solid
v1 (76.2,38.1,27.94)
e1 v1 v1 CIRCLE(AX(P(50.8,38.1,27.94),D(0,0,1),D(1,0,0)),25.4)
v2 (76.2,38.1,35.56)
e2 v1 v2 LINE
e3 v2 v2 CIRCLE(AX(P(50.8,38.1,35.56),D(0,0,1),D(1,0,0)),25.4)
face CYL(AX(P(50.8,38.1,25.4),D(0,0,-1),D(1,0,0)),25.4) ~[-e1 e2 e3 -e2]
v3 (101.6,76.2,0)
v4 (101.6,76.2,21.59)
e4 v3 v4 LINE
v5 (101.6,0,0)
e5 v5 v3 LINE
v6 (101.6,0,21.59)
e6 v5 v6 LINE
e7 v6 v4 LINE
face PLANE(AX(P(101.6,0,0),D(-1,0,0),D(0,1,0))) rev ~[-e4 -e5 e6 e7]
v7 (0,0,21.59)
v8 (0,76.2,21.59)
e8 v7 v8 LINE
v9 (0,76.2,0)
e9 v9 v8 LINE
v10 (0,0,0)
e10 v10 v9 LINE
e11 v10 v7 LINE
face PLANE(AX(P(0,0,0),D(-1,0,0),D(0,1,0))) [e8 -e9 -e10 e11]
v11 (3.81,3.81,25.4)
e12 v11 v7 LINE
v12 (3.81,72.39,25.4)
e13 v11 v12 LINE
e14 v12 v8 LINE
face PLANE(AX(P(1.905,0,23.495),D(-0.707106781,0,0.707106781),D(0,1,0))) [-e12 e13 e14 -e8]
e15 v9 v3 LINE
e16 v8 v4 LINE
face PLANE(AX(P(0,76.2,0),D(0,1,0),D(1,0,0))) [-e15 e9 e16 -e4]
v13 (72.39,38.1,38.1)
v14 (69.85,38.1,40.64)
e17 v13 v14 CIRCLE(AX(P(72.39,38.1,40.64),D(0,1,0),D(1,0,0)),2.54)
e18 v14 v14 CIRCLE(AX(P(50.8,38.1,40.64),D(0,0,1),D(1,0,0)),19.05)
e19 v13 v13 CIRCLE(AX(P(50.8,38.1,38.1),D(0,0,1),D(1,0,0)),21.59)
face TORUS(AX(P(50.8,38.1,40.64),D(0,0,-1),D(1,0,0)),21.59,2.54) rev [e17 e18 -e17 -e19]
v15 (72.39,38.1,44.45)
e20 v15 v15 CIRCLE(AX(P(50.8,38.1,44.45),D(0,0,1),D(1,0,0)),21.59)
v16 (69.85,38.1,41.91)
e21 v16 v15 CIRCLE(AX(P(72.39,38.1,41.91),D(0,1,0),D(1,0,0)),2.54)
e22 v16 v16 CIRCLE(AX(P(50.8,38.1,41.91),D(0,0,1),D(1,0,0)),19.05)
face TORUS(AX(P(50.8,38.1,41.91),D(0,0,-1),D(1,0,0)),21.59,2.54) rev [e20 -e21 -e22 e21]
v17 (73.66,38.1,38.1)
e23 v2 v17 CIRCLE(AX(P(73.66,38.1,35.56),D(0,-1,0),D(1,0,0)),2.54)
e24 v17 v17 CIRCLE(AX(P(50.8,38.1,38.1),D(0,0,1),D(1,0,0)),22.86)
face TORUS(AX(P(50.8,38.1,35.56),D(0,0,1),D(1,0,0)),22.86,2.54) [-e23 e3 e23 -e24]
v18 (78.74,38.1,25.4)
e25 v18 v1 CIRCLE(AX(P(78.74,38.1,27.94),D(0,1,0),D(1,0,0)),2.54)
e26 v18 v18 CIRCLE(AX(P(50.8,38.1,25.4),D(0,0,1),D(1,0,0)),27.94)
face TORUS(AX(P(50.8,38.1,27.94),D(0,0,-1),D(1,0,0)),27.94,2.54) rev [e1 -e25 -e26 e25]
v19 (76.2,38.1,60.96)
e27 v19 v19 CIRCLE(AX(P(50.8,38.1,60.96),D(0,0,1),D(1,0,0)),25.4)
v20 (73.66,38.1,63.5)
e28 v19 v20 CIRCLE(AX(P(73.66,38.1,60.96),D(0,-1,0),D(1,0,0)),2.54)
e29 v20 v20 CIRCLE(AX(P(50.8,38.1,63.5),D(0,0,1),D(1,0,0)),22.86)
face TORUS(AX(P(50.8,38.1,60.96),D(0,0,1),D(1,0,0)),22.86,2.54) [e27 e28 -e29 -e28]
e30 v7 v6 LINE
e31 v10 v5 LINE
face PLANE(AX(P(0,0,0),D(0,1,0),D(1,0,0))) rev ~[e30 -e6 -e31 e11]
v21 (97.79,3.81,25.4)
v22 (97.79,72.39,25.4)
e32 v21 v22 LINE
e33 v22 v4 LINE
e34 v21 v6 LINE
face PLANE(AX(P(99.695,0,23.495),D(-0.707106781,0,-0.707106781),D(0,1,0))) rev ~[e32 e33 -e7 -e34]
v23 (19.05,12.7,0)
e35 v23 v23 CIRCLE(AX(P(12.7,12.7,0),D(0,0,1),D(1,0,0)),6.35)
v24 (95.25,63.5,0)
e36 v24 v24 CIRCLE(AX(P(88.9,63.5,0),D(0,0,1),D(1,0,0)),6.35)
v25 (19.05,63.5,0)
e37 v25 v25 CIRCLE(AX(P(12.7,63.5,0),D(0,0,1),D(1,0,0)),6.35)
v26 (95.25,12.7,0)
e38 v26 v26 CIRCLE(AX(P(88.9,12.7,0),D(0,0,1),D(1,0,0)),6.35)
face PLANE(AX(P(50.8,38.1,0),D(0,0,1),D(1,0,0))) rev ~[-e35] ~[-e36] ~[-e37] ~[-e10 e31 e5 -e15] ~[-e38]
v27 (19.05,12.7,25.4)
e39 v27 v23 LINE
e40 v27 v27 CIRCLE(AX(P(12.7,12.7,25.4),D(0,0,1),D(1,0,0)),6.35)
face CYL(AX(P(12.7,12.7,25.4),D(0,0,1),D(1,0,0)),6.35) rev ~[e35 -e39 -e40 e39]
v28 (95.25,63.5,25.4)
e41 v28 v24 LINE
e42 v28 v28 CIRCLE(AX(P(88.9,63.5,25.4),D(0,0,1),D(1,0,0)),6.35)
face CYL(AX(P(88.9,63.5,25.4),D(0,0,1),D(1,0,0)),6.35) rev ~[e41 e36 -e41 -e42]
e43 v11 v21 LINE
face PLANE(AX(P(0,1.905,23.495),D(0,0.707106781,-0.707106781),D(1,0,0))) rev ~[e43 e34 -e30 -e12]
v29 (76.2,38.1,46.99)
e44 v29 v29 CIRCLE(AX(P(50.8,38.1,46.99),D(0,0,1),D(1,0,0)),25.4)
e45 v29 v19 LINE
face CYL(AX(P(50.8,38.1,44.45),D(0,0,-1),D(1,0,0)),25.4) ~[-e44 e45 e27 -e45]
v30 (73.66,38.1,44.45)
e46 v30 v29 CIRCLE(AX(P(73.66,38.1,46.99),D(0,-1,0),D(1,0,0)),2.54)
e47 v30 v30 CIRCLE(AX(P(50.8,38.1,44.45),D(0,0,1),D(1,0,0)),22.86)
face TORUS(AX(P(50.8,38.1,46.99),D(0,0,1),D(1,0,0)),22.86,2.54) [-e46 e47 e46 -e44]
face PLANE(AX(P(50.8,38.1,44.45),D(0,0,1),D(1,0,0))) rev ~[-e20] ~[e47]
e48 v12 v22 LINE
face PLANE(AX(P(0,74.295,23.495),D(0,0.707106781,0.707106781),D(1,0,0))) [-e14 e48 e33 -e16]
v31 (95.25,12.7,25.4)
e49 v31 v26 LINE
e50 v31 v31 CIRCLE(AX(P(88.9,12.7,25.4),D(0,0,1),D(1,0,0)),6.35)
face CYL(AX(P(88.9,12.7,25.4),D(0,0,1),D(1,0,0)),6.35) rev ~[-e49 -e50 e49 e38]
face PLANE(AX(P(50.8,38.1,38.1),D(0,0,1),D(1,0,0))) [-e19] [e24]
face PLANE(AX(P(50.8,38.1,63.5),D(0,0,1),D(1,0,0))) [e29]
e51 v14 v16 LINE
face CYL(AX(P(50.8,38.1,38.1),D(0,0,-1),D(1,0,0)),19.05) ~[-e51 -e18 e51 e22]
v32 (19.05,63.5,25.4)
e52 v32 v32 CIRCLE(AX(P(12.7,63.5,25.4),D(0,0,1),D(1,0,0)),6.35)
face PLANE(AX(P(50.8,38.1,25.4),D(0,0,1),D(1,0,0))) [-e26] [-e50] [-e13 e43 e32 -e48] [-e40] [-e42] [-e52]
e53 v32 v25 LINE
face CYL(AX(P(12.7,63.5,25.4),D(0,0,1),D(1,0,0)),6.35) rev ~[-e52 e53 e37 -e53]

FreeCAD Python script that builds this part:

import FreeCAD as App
import Part
import Sketcher
Q = App.Units.Quantity


def edges_at(feature, points):
    """Names of the edges that pass closest to the given points."""
    edges = feature.Shape.Edges
    near = lambda p: min(range(len(edges)), key=lambda i: edges[i].distToShape(Part.Vertex(*p))[0])
    return sorted({f"Edge{near(p) + 1}" for p in points})

doc = App.newDocument("Part")
params = doc.addObject("Spreadsheet::Sheet", "Params")
for row, (alias, value) in enumerate([
    ("sketch1_width", "4 in"),
    ("sketch1_height", "3 in"),
    ("pad1_length", "1 in"),
    ("sketch2_diameter", "0.5 in"),
    ("pocket1_length", "1 in"),
    ("sketch3_diameter", "2 in"),
    ("pad2_length", "0.5 in"),
    ("sketch4_diameter", "1.5 in"),
    ("pad3_length", "0.25 in"),
    ("sketch5_diameter", "2 in"),
    ("pad4_length", "0.75 in"),
    ("chamfer_size", "0.15 in"),
    ("fillet_radius", "0.1 in"),
], start=1):
    params.set(f"A{row}", alias)
    params.set(f"B{row}", "=" + value)
    params.setAlias(f"B{row}", alias)

body = doc.addObject("PartDesign::Body", "Body")

# Sketch on XY plane
sketch1 = doc.addObject("Sketcher::SketchObject", "Sketch")
body.addObject(sketch1)
sketch1.AttachmentSupport = (doc.XY_Plane, [""])
sketch1.MapMode = "FlatFace"
sketch1.addGeometry([
    Part.LineSegment(App.Vector(0, 76, 0), App.Vector(0, 0, 0)),
    Part.LineSegment(App.Vector(0, 0, 0), App.Vector(102, 0, 0)),
    Part.LineSegment(App.Vector(102, 0, 0), App.Vector(102, 76, 0)),
    Part.LineSegment(App.Vector(102, 76, 0), App.Vector(0, 76, 0)),
], False)
sketch1.addConstraint([
    Sketcher.Constraint("Coincident", 0, 2, 1, 1),
    Sketcher.Constraint("Coincident", 1, 2, 2, 1),
    Sketcher.Constraint("Coincident", 2, 2, 3, 1),
    Sketcher.Constraint("Coincident", 3, 2, 0, 1),
    Sketcher.Constraint("Vertical", 0),
    Sketcher.Constraint("Horizontal", 1),
    Sketcher.Constraint("Vertical", 2),
    Sketcher.Constraint("Horizontal", 3),
    Sketcher.Constraint("Coincident", 0, 2, -1, 1),
    Sketcher.Constraint("DistanceX", 1, 1, 1, 2, Q("4 in")),
    Sketcher.Constraint("DistanceY", 0, 2, 0, 1, Q("3 in")),
])
sketch1.setExpression("Constraints[9]", "Params.sketch1_width")
sketch1.setExpression("Constraints[10]", "Params.sketch1_height")
pad1 = doc.addObject("PartDesign::Pad", "Pad")
body.addObject(pad1)
pad1.Profile = sketch1
pad1.setExpression("Length", "Params.pad1_length")

# Sketch on XY plane
sketch2 = doc.addObject("Sketcher::SketchObject", "Sketch001")
body.addObject(sketch2)
sketch2.AttachmentSupport = (doc.XY_Plane, [""])
sketch2.MapMode = "FlatFace"
sketch2.AttachmentOffset = App.Placement(App.Vector(0, 0, 1 * 25.4), App.Rotation())
sketch2.addGeometry([
    Part.Circle(App.Vector(13, 64, 0), App.Vector(0, 0, 1), 6),
    Part.Circle(App.Vector(89, 13, 0), App.Vector(0, 0, 1), 6),
    Part.Circle(App.Vector(89, 64, 0), App.Vector(0, 0, 1), 6),
    Part.Circle(App.Vector(13, 13, 0), App.Vector(0, 0, 1), 6),
], False)
sketch2.addConstraint([
    Sketcher.Constraint("Equal", 0, 1),
    Sketcher.Constraint("Equal", 1, 2),
    Sketcher.Constraint("Equal", 2, 3),
    Sketcher.Constraint("Horizontal", 0, 3, 2, 3),
    Sketcher.Constraint("Horizontal", 1, 3, 3, 3),
    Sketcher.Constraint("Vertical", 1, 3, 2, 3),
    Sketcher.Constraint("Vertical", 0, 3, 3, 3),
    Sketcher.Constraint("Diameter", 0, Q("0.5 in")),
    Sketcher.Constraint("DistanceX", 0, 3, 1, 3, Q("3 in")),
    Sketcher.Constraint("DistanceY", 1, 3, 0, 3, Q("2 in")),
    Sketcher.Constraint("DistanceX", -1, 1, 0, 3, Q("0.5 in")),
    Sketcher.Constraint("DistanceY", -1, 1, 0, 3, Q("2.5 in")),
])
sketch2.setExpression("Constraints[7]", "Params.sketch2_diameter")
pocket1 = doc.addObject("PartDesign::Pocket", "Pocket")
body.addObject(pocket1)
pocket1.Profile = sketch2
pocket1.setExpression("Length", "Params.pocket1_length")

# Sketch on XY plane
sketch3 = doc.addObject("Sketcher::SketchObject", "Sketch002")
body.addObject(sketch3)
sketch3.AttachmentSupport = (doc.XY_Plane, [""])
sketch3.MapMode = "FlatFace"
sketch3.AttachmentOffset = App.Placement(App.Vector(0, 0, 1 * 25.4), App.Rotation())
sketch3.addGeometry(Part.Circle(App.Vector(51, 38, 0), App.Vector(0, 0, 1), 25), False)
sketch3.addConstraint([
    Sketcher.Constraint("Diameter", 0, Q("2 in")),
    Sketcher.Constraint("DistanceX", -1, 1, 0, 3, Q("2 in")),
    Sketcher.Constraint("DistanceY", -1, 1, 0, 3, Q("1.5 in")),
])
sketch3.setExpression("Constraints[0]", "Params.sketch3_diameter")
pad2 = doc.addObject("PartDesign::Pad", "Pad001")
body.addObject(pad2)
pad2.Profile = sketch3
pad2.setExpression("Length", "Params.pad2_length")

# Sketch on XY plane
sketch4 = doc.addObject("Sketcher::SketchObject", "Sketch003")
body.addObject(sketch4)
sketch4.AttachmentSupport = (doc.XY_Plane, [""])
sketch4.MapMode = "FlatFace"
sketch4.AttachmentOffset = App.Placement(App.Vector(0, 0, 1.5 * 25.4), App.Rotation())
sketch4.addGeometry(Part.Circle(App.Vector(51, 38, 0), App.Vector(0, 0, 1), 19), False)
sketch4.addConstraint([
    Sketcher.Constraint("Diameter", 0, Q("1.5 in")),
    Sketcher.Constraint("DistanceX", -1, 1, 0, 3, Q("2 in")),
    Sketcher.Constraint("DistanceY", -1, 1, 0, 3, Q("1.5 in")),
])
sketch4.setExpression("Constraints[0]", "Params.sketch4_diameter")
pad3 = doc.addObject("PartDesign::Pad", "Pad002")
body.addObject(pad3)
pad3.Profile = sketch4
pad3.setExpression("Length", "Params.pad3_length")

# Sketch on XY plane
sketch5 = doc.addObject("Sketcher::SketchObject", "Sketch004")
body.addObject(sketch5)
sketch5.AttachmentSupport = (doc.XY_Plane, [""])
sketch5.MapMode = "FlatFace"
sketch5.AttachmentOffset = App.Placement(App.Vector(0, 0, 1.75 * 25.4), App.Rotation())
sketch5.addGeometry(Part.Circle(App.Vector(51, 38, 0), App.Vector(0, 0, 1), 25), False)
sketch5.addConstraint([
    Sketcher.Constraint("Diameter", 0, Q("2 in")),
    Sketcher.Constraint("DistanceX", -1, 1, 0, 3, Q("2 in")),
    Sketcher.Constraint("DistanceY", -1, 1, 0, 3, Q("1.5 in")),
])
sketch5.setExpression("Constraints[0]", "Params.sketch5_diameter")
pad4 = doc.addObject("PartDesign::Pad", "Pad003")
body.addObject(pad4)
pad4.Profile = sketch5
pad4.setExpression("Length", "Params.pad4_length")
doc.recompute()

chamfer = doc.addObject("PartDesign::Chamfer", "Chamfer")
body.addObject(chamfer)
chamfer.Base = (pad4, edges_at(pad4, [
    (101.6, 38.1, 25.4),
    (50.8, 0, 25.4),
    (50.8, 76.2, 25.4),
    (0, 38.1, 25.4),
]))
chamfer.setExpression("Size", "Params.chamfer_size")
doc.recompute()

fillet = doc.addObject("PartDesign::Fillet", "Fillet")
body.addObject(fillet)
fillet.Base = (chamfer, edges_at(chamfer, [
    (25.4, 38.1, 25.4),
    (25.4, 38.1, 38.1),
    (31.75, 38.1, 38.1),
    (25.4, 38.1, 44.45),
    (31.75, 38.1, 44.45),
    (25.4, 38.1, 63.5),
]))
fillet.setExpression("Radius", "Params.fillet_radius")

doc.recompute()
